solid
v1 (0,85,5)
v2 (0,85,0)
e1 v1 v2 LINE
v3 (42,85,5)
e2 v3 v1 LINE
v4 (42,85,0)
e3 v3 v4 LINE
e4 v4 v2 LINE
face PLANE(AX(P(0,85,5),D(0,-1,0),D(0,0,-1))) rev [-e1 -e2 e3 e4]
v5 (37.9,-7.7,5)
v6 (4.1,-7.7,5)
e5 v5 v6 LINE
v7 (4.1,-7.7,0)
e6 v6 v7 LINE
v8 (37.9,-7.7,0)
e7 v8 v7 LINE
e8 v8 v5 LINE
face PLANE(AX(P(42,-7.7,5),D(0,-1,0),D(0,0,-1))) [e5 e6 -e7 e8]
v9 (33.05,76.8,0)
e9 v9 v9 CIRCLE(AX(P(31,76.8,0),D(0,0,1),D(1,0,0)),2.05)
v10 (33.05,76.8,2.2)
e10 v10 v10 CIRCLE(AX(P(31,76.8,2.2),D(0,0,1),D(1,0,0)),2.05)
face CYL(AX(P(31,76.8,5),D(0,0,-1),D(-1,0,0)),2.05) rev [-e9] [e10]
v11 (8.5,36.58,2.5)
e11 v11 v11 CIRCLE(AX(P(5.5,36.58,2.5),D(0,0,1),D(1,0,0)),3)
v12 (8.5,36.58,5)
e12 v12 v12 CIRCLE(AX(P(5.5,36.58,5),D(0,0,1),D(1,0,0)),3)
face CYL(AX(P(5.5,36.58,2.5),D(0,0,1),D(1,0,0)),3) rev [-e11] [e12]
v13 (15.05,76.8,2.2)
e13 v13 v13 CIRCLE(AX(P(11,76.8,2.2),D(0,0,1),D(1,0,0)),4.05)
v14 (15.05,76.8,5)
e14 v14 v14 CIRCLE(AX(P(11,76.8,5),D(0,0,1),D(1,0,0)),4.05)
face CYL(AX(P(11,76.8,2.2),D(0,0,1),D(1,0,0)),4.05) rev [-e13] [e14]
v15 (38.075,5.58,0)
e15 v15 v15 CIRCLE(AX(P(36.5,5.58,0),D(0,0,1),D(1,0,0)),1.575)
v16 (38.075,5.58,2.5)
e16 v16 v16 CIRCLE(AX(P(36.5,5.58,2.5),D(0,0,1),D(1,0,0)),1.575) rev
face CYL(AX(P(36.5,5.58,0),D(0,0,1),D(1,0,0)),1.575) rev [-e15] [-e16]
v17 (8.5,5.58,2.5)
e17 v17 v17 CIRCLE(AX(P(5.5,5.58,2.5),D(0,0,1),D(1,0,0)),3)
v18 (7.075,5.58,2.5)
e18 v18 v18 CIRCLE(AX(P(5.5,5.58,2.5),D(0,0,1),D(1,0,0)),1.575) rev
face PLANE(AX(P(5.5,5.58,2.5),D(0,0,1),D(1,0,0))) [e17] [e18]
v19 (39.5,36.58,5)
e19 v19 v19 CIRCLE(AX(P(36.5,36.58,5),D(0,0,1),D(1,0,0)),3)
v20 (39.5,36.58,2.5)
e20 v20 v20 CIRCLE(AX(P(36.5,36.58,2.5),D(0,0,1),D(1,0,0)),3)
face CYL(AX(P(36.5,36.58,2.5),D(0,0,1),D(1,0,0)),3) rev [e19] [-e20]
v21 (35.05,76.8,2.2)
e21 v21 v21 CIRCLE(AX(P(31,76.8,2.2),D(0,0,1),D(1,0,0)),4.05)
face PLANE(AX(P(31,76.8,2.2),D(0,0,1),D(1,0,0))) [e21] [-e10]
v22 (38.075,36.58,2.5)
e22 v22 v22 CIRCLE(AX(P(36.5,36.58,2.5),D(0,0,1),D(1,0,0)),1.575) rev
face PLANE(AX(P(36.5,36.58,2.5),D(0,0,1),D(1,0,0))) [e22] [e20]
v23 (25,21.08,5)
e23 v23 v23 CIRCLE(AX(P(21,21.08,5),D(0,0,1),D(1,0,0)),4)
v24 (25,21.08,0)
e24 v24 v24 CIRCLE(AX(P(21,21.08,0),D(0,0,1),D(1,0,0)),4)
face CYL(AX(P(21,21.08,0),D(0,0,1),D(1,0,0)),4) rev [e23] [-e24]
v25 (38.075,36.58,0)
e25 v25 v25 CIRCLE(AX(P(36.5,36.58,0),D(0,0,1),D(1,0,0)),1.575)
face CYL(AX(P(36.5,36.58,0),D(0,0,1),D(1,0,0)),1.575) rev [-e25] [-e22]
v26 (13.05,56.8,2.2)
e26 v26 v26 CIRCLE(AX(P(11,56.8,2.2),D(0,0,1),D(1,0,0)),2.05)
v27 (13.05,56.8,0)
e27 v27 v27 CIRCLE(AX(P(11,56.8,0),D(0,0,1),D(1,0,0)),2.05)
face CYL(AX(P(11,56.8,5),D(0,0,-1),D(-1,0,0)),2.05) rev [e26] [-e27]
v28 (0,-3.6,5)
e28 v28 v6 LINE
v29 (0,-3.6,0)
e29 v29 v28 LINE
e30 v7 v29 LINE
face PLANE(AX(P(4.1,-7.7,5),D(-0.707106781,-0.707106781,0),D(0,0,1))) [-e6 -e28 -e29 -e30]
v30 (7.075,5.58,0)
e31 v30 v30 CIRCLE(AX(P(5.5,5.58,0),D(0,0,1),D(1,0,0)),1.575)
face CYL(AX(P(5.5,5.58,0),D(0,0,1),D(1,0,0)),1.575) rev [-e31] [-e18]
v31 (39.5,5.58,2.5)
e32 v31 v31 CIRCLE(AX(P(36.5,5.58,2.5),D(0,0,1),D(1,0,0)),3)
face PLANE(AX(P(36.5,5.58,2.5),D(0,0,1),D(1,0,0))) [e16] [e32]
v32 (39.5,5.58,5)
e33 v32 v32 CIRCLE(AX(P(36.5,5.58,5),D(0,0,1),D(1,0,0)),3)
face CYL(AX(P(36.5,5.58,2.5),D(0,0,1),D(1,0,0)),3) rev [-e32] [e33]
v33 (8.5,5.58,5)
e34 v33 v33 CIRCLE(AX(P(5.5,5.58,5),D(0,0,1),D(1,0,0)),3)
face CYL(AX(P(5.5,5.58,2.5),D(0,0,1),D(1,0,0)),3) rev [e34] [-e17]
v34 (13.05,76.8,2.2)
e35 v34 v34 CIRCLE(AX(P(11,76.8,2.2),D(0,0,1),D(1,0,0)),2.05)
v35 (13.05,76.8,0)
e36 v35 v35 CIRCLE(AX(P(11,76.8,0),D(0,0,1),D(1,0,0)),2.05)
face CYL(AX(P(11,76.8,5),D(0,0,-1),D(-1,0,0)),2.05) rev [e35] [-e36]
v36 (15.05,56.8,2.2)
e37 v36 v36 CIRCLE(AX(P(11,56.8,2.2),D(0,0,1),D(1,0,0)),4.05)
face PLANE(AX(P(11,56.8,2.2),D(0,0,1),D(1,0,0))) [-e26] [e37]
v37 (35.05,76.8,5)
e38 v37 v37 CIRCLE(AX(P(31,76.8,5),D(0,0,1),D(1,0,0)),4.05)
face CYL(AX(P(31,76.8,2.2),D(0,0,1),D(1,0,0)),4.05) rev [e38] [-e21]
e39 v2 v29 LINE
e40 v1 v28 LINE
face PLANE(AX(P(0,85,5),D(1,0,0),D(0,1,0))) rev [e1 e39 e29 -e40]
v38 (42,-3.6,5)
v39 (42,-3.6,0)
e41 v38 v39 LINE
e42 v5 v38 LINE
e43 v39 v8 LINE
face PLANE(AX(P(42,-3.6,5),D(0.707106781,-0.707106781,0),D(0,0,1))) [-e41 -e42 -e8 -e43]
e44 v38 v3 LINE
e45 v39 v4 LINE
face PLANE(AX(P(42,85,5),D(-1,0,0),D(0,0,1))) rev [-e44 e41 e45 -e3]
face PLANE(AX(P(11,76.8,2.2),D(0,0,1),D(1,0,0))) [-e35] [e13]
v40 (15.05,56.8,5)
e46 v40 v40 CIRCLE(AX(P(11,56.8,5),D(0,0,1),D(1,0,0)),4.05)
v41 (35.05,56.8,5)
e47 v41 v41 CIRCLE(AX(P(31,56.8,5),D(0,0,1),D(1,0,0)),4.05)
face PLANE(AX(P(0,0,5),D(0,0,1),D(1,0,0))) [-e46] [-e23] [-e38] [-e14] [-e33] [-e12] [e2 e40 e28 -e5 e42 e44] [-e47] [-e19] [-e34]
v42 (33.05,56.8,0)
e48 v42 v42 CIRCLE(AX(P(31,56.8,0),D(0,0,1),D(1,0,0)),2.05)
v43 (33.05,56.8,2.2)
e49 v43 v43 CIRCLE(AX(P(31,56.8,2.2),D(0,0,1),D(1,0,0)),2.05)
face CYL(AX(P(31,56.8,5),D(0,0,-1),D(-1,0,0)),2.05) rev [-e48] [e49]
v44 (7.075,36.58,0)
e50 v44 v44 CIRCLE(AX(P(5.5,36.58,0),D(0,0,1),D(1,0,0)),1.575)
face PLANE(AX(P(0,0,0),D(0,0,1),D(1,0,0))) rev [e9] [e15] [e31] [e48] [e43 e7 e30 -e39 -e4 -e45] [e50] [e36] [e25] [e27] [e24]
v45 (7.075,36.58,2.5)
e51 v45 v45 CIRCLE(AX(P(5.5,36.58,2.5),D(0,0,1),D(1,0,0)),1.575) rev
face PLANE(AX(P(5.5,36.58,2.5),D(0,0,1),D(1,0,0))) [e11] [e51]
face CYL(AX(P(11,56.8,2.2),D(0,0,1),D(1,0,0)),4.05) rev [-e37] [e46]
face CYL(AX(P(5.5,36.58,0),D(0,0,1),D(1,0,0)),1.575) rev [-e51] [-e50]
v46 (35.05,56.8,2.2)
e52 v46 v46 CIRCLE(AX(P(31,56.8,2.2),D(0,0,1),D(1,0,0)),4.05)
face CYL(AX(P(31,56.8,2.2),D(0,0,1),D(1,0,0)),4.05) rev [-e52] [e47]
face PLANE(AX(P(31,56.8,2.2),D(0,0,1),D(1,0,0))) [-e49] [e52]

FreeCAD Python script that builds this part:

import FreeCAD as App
import Part
import Sketcher
from FreeCAD import Vector


def edges_at(feature, points):
    """Names of the edges that pass closest to the given points."""
    edges = feature.Shape.Edges
    near = lambda p: min(range(len(edges)), key=lambda i: edges[i].distToShape(Part.Vertex(*p))[0])
    return sorted({f"Edge{near(p) + 1}" for p in points})

doc = App.newDocument("Part")
params = doc.addObject("Spreadsheet::Sheet", "Params")
for row, (alias, value) in enumerate([
    ("sketch1_diameter", "4.1 mm"),
    ("sketch1_width", "42 mm"),
    ("sketch1_height", "85 mm"),
    ("pad1_length", "5 mm"),
    ("sketch2_diameter", "8.1 mm"),
    ("pocket1_length", "2.8 mm"),
    ("sketch3_diameter", "8 mm"),
    ("sketch3_diameter2", "3.15 mm"),
    ("sketch4_diameter", "6 mm"),
    ("pocket3_length", "2.5 mm"),
    ("sketch5_width", "42 mm"),
    ("sketch5_height", "7.7 mm"),
    ("pad2_length", "5 mm"),
    ("chamfer_size", "4.1 mm"),
], start=1):
    params.set(f"A{row}", alias)
    params.set(f"B{row}", "=" + value)
    params.setAlias(f"B{row}", alias)

body = doc.addObject("PartDesign::Body", "Body")

# Sketch on XY plane
sketch1 = doc.addObject("Sketcher::SketchObject", "Sketch")
body.addObject(sketch1)
sketch1.AttachmentSupport = (doc.XY_Plane, [""])
sketch1.MapMode = "FlatFace"
sketch1.addGeometry(Part.LineSegment(Vector(0, 85, 0), Vector(0, 0, 0)), False)
sketch1.addGeometry(Part.LineSegment(Vector(0, 0, 0), Vector(42, 0, 0)), False)
sketch1.addGeometry(Part.LineSegment(Vector(42, 0, 0), Vector(42, 85, 0)), False)
sketch1.addGeometry(Part.LineSegment(Vector(42, 85, 0), Vector(0, 85, 0)), False)
sketch1.addGeometry(Part.Circle(Vector(11, 56.8, 0), Vector(0, 0, 1), 2.05), False)
sketch1.addGeometry(Part.Circle(Vector(31, 56.8, 0), Vector(0, 0, 1), 2.05), False)
sketch1.addGeometry(Part.Circle(Vector(11, 76.8, 0), Vector(0, 0, 1), 2.05), False)
sketch1.addGeometry(Part.Circle(Vector(31, 76.8, 0), Vector(0, 0, 1), 2.05), False)
sketch1.addConstraint(Sketcher.Constraint("Coincident", 0, 2, 1, 1))
sketch1.addConstraint(Sketcher.Constraint("Coincident", 1, 2, 2, 1))
sketch1.addConstraint(Sketcher.Constraint("Coincident", 2, 2, 3, 1))
sketch1.addConstraint(Sketcher.Constraint("Coincident", 3, 2, 0, 1))
sketch1.addConstraint(Sketcher.Constraint("Vertical", 0))
sketch1.addConstraint(Sketcher.Constraint("Horizontal", 1))
sketch1.addConstraint(Sketcher.Constraint("Vertical", 2))
sketch1.addConstraint(Sketcher.Constraint("Horizontal", 3))
sketch1.addConstraint(Sketcher.Constraint("Coincident", 0, 2, -1, 1))
sketch1.addConstraint(Sketcher.Constraint("Equal", 4, 5))
sketch1.addConstraint(Sketcher.Constraint("Equal", 5, 6))
sketch1.addConstraint(Sketcher.Constraint("Equal", 6, 7))
sketch1.addConstraint(Sketcher.Constraint("Horizontal", 4, 3, 5, 3))
sketch1.addConstraint(Sketcher.Constraint("Horizontal", 6, 3, 7, 3))
sketch1.addConstraint(Sketcher.Constraint("Vertical", 4, 3, 6, 3))
sketch1.addConstraint(Sketcher.Constraint("Vertical", 5, 3, 7, 3))
sketch1.addConstraint(Sketcher.Constraint("Diameter", 4, 4.1))
sketch1.addConstraint(Sketcher.Constraint("DistanceX", 1, 1, 1, 2, 42.0))
sketch1.addConstraint(Sketcher.Constraint("DistanceY", 0, 2, 0, 1, 85.0))
sketch1.addConstraint(Sketcher.Constraint("DistanceX", -1, 1, 4, 3, 11.0))
sketch1.addConstraint(Sketcher.Constraint("DistanceX", -1, 1, 5, 3, 31.0))
sketch1.addConstraint(Sketcher.Constraint("DistanceY", 4, 3, 6, 3, 20.0))
sketch1.addConstraint(Sketcher.Constraint("DistanceY", -1, 1, 4, 3, 56.8))
sketch1.setExpression("Constraints[16]", "Params.sketch1_diameter")
sketch1.setExpression("Constraints[17]", "Params.sketch1_width")
sketch1.setExpression("Constraints[18]", "Params.sketch1_height")
pad1 = doc.addObject("PartDesign::Pad", "Pad")
body.addObject(pad1)
pad1.Profile = sketch1
pad1.setExpression("Length", "Params.pad1_length")

# Sketch on XY plane
sketch2 = doc.addObject("Sketcher::SketchObject", "Sketch001")
body.addObject(sketch2)
sketch2.AttachmentSupport = (doc.XY_Plane, [""])
sketch2.MapMode = "FlatFace"
sketch2.AttachmentOffset = App.Placement(Vector(0, 0, 5), App.Rotation())
sketch2.addGeometry(Part.Circle(Vector(11, 76.8, 0), Vector(0, 0, 1), 4.05), False)
sketch2.addGeometry(Part.Circle(Vector(11, 56.8, 0), Vector(0, 0, 1), 4.05), False)
sketch2.addGeometry(Part.Circle(Vector(31, 56.8, 0), Vector(0, 0, 1), 4.05), False)
sketch2.addGeometry(Part.Circle(Vector(31, 76.8, 0), Vector(0, 0, 1), 4.05), False)
sketch2.addConstraint(Sketcher.Constraint("Equal", 0, 1))
sketch2.addConstraint(Sketcher.Constraint("Equal", 1, 2))
sketch2.addConstraint(Sketcher.Constraint("Equal", 2, 3))
sketch2.addConstraint(Sketcher.Constraint("Horizontal", 1, 3, 2, 3))
sketch2.addConstraint(Sketcher.Constraint("Horizontal", 0, 3, 3, 3))
sketch2.addConstraint(Sketcher.Constraint("Vertical", 0, 3, 1, 3))
sketch2.addConstraint(Sketcher.Constraint("Vertical", 2, 3, 3, 3))
sketch2.addConstraint(Sketcher.Constraint("Diameter", 0, 8.1))
sketch2.addConstraint(Sketcher.Constraint("DistanceX", -1, 1, 0, 3, 11.0))
sketch2.addConstraint(Sketcher.Constraint("DistanceX", -1, 1, 2, 3, 31.0))
sketch2.addConstraint(Sketcher.Constraint("DistanceY", 1, 3, 0, 3, 20.0))
sketch2.addConstraint(Sketcher.Constraint("DistanceY", -1, 1, 0, 3, 76.8))
sketch2.setExpression("Constraints[7]", "Params.sketch2_diameter")
pocket1 = doc.addObject("PartDesign::Pocket", "Pocket")
body.addObject(pocket1)
pocket1.Profile = sketch2
pocket1.setExpression("Length", "Params.pocket1_length")

# Sketch on XY plane
sketch3 = doc.addObject("Sketcher::SketchObject", "Sketch002")
body.addObject(sketch3)
sketch3.AttachmentSupport = (doc.XY_Plane, [""])
sketch3.MapMode = "FlatFace"
sketch3.AttachmentOffset = App.Placement(Vector(0, 0, 5), App.Rotation())
sketch3.addGeometry(Part.Circle(Vector(5.5, 36.58, 0), Vector(0, 0, 1), 1.575), False)
sketch3.addGeometry(Part.Circle(Vector(36.5, 36.58, 0), Vector(0, 0, 1), 1.575), False)
sketch3.addGeometry(Part.Circle(Vector(36.5, 5.58, 0), Vector(0, 0, 1), 1.575), False)
sketch3.addGeometry(Part.Circle(Vector(5.5, 5.58, 0), Vector(0, 0, 1), 1.575), False)
sketch3.addGeometry(Part.Circle(Vector(21, 21.08, 0), Vector(0, 0, 1), 4), False)
sketch3.addConstraint(Sketcher.Constraint("Equal", 0, 1))
sketch3.addConstraint(Sketcher.Constraint("Equal", 1, 2))
sketch3.addConstraint(Sketcher.Constraint("Equal", 2, 3))
sketch3.addConstraint(Sketcher.Constraint("Horizontal", 0, 3, 1, 3))
sketch3.addConstraint(Sketcher.Constraint("Horizontal", 2, 3, 3, 3))
sketch3.addConstraint(Sketcher.Constraint("Vertical", 1, 3, 2, 3))
sketch3.addConstraint(Sketcher.Constraint("Vertical", 0, 3, 3, 3))
sketch3.addConstraint(Sketcher.Constraint("Diameter", 4, 8.0))
sketch3.addConstraint(Sketcher.Constraint("Diameter", 0, 3.15))
sketch3.addConstraint(Sketcher.Constraint("DistanceX", -1, 1, 4, 3, 21.0))
sketch3.addConstraint(Sketcher.Constraint("DistanceX", 0, 3, 1, 3, 31.0))
sketch3.addConstraint(Sketcher.Constraint("DistanceY", 2, 3, 1, 3, 31.0))
sketch3.addConstraint(Sketcher.Constraint("DistanceX", -1, 1, 0, 3, 5.5))
sketch3.addConstraint(Sketcher.Constraint("DistanceY", 4, 3, 0, 3, 15.5))
sketch3.addConstraint(Sketcher.Constraint("DistanceY", -1, 1, 0, 3, 36.58))
sketch3.setExpression("Constraints[7]", "Params.sketch3_diameter")
sketch3.setExpression("Constraints[8]", "Params.sketch3_diameter2")
pocket2 = doc.addObject("PartDesign::Pocket", "Pocket001")
body.addObject(pocket2)
pocket2.Profile = sketch3
pocket2.Type = "ThroughAll"

# Sketch on XY plane
sketch4 = doc.addObject("Sketcher::SketchObject", "Sketch003")
body.addObject(sketch4)
sketch4.AttachmentSupport = (doc.XY_Plane, [""])
sketch4.MapMode = "FlatFace"
sketch4.AttachmentOffset = App.Placement(Vector(0, 0, 5), App.Rotation())
sketch4.addGeometry(Part.Circle(Vector(5.5, 36.58, 0), Vector(0, 0, 1), 3), False)
sketch4.addGeometry(Part.Circle(Vector(36.5, 36.58, 0), Vector(0, 0, 1), 3), False)
sketch4.addGeometry(Part.Circle(Vector(36.5, 5.58, 0), Vector(0, 0, 1), 3), False)
sketch4.addGeometry(Part.Circle(Vector(5.5, 5.58, 0), Vector(0, 0, 1), 3), False)
sketch4.addConstraint(Sketcher.Constraint("Equal", 0, 1))
sketch4.addConstraint(Sketcher.Constraint("Equal", 1, 2))
sketch4.addConstraint(Sketcher.Constraint("Equal", 2, 3))
sketch4.addConstraint(Sketcher.Constraint("Horizontal", 0, 3, 1, 3))
sketch4.addConstraint(Sketcher.Constraint("Horizontal", 2, 3, 3, 3))
sketch4.addConstraint(Sketcher.Constraint("Vertical", 1, 3, 2, 3))
sketch4.addConstraint(Sketcher.Constraint("Vertical", 0, 3, 3, 3))
sketch4.addConstraint(Sketcher.Constraint("Diameter", 0, 6.0))
sketch4.addConstraint(Sketcher.Constraint("DistanceX", 0, 3, 1, 3, 31.0))
sketch4.addConstraint(Sketcher.Constraint("DistanceY", 2, 3, 1, 3, 31.0))
sketch4.addConstraint(Sketcher.Constraint("DistanceX", -1, 1, 0, 3, 5.5))
sketch4.addConstraint(Sketcher.Constraint("DistanceY", -1, 1, 0, 3, 36.58))
sketch4.setExpression("Constraints[7]", "Params.sketch4_diameter")
pocket3 = doc.addObject("PartDesign::Pocket", "Pocket002")
body.addObject(pocket3)
pocket3.Profile = sketch4
pocket3.setExpression("Length", "Params.pocket3_length")

# Sketch on XY plane
sketch5 = doc.addObject("Sketcher::SketchObject", "Sketch004")
body.addObject(sketch5)
sketch5.AttachmentSupport = (doc.XY_Plane, [""])
sketch5.MapMode = "FlatFace"
sketch5.addGeometry(Part.LineSegment(Vector(42, 0, 0), Vector(42, -7.7, 0)), False)
sketch5.addGeometry(Part.LineSegment(Vector(42, -7.7, 0), Vector(0, -7.7, 0)), False)
sketch5.addGeometry(Part.LineSegment(Vector(0, -7.7, 0), Vector(0, 0, 0)), False)
sketch5.addGeometry(Part.LineSegment(Vector(0, 0, 0), Vector(42, 0, 0)), False)
sketch5.addConstraint(Sketcher.Constraint("Coincident", 0, 2, 1, 1))
sketch5.addConstraint(Sketcher.Constraint("Coincident", 1, 2, 2, 1))
sketch5.addConstraint(Sketcher.Constraint("Coincident", 2, 2, 3, 1))
sketch5.addConstraint(Sketcher.Constraint("Coincident", 3, 2, 0, 1))
sketch5.addConstraint(Sketcher.Constraint("Vertical", 0))
sketch5.addConstraint(Sketcher.Constraint("Horizontal", 1))
sketch5.addConstraint(Sketcher.Constraint("Vertical", 2))
sketch5.addConstraint(Sketcher.Constraint("Horizontal", 3))
sketch5.addConstraint(Sketcher.Constraint("Coincident", 2, 2, -1, 1))
sketch5.addConstraint(Sketcher.Constraint("DistanceX", 1, 2, 1, 1, 42.0))
sketch5.addConstraint(Sketcher.Constraint("DistanceY", 0, 2, 0, 1, 7.7))
sketch5.setExpression("Constraints[9]", "Params.sketch5_width")
sketch5.setExpression("Constraints[10]", "Params.sketch5_height")
pad2 = doc.addObject("PartDesign::Pad", "Pad001")
body.addObject(pad2)
pad2.Profile = sketch5
pad2.setExpression("Length", "Params.pad2_length")
doc.recompute()

chamfer = doc.addObject("PartDesign::Chamfer", "Chamfer")
body.addObject(chamfer)
chamfer.Base = (pad2, edges_at(pad2, [(42, -7.7, 2.5), (0, -7.7, 2.5)]))
chamfer.setExpression("Size", "Params.chamfer_size")

doc.recompute()
